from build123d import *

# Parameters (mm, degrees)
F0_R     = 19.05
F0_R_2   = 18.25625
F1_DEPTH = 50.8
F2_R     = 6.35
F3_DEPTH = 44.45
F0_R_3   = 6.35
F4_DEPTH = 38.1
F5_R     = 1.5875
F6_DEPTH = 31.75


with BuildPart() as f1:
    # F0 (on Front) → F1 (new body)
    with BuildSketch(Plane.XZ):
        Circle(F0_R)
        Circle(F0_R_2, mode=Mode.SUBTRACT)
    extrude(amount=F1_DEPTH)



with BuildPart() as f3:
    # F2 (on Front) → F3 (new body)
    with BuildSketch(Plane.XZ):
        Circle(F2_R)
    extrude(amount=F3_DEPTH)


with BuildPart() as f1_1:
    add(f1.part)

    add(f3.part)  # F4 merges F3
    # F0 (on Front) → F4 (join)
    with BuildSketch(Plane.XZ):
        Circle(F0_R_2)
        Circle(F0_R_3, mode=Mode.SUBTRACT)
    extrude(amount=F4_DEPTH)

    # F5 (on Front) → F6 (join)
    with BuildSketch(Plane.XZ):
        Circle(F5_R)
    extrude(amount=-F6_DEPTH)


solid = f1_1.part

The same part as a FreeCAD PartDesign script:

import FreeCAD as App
import Part
import Sketcher
from FreeCAD import Vector
Q = App.Units.Quantity

doc = App.newDocument("Part")
body = doc.addObject("PartDesign::Body", "Body")

sketch1 = body.newObject("Sketcher::SketchObject", "Sketch")
sketch1.AttachmentSupport = (doc.getObject("XZ_Plane"), [""])
sketch1.MapMode = "FlatFace"
sketch1.addGeometry([
    Part.Circle(Vector(0, 0, 0), Vector(0, 0, 1), 19),
    Part.Circle(Vector(0, 0, 0), Vector(0, 0, 1), 18),
], False)
sketch1.addConstraint([
    Sketcher.Constraint("Coincident", 0, 3, -1, 1),
    Sketcher.Constraint("Coincident", 1, 3, -1, 1),
    Sketcher.Constraint("Diameter", 0, Q("1.5 in")),
    Sketcher.Constraint("Diameter", 1, Q("1.4375 in")),
])
pad1 = body.newObject("PartDesign::Pad", "Pad")
pad1.Profile = sketch1
pad1.Length = Q("2 in")
body2 = doc.addObject("PartDesign::Body", "Body001")

sketch2 = body2.newObject("Sketcher::SketchObject", "Sketch001")
sketch2.AttachmentSupport = (doc.getObject("XZ_Plane001"), [""])
sketch2.MapMode = "FlatFace"
sketch2.addGeometry(Part.Circle(Vector(0, 0, 0), Vector(0, 0, 1), 6), False)
sketch2.addConstraint([
    Sketcher.Constraint("Coincident", 0, 3, -1, 1),
    Sketcher.Constraint("Diameter", 0, Q("0.5 in")),
])
pad2 = body2.newObject("PartDesign::Pad", "Pad001")
pad2.Profile = sketch2
pad2.Length = Q("1.75 in")
body.AllowCompound = True
doc.recompute()

boolean = body.newObject("PartDesign::Boolean", "Boolean")
boolean.Type = "Fuse"
boolean.addObjects([body2])

sketch3 = body.newObject("Sketcher::SketchObject", "Sketch002")
sketch3.AttachmentSupport = (doc.getObject("XZ_Plane"), [""])
sketch3.MapMode = "FlatFace"
sketch3.addGeometry([
    Part.Circle(Vector(0, 0, 0), Vector(0, 0, 1), 18),
    Part.Circle(Vector(0, 0, 0), Vector(0, 0, 1), 6),
], False)
sketch3.addConstraint([
    Sketcher.Constraint("Coincident", 0, 3, -1, 1),
    Sketcher.Constraint("Coincident", 1, 3, -1, 1),
    Sketcher.Constraint("Diameter", 1, Q("0.5 in")),
    Sketcher.Constraint("Diameter", 0, Q("1.4375 in")),
])
pad3 = body.newObject("PartDesign::Pad", "Pad002")
pad3.Profile = sketch3
pad3.Length = Q("1.5 in")

sketch4 = body.newObject("Sketcher::SketchObject", "Sketch003")
sketch4.AttachmentSupport = (doc.getObject("XZ_Plane"), [""])
sketch4.MapMode = "FlatFace"
sketch4.addGeometry(Part.Circle(Vector(0, 0, 0), Vector(0, 0, 1), 1.6), False)
sketch4.addConstraint([
    Sketcher.Constraint("Coincident", 0, 3, -1, 1),
    Sketcher.Constraint("Diameter", 0, Q("0.125 in")),
])
pad4 = body.newObject("PartDesign::Pad", "Pad003")
pad4.Profile = sketch4
pad4.Length = Q("1.25 in")
pad4.Reversed = True

doc.recompute()
